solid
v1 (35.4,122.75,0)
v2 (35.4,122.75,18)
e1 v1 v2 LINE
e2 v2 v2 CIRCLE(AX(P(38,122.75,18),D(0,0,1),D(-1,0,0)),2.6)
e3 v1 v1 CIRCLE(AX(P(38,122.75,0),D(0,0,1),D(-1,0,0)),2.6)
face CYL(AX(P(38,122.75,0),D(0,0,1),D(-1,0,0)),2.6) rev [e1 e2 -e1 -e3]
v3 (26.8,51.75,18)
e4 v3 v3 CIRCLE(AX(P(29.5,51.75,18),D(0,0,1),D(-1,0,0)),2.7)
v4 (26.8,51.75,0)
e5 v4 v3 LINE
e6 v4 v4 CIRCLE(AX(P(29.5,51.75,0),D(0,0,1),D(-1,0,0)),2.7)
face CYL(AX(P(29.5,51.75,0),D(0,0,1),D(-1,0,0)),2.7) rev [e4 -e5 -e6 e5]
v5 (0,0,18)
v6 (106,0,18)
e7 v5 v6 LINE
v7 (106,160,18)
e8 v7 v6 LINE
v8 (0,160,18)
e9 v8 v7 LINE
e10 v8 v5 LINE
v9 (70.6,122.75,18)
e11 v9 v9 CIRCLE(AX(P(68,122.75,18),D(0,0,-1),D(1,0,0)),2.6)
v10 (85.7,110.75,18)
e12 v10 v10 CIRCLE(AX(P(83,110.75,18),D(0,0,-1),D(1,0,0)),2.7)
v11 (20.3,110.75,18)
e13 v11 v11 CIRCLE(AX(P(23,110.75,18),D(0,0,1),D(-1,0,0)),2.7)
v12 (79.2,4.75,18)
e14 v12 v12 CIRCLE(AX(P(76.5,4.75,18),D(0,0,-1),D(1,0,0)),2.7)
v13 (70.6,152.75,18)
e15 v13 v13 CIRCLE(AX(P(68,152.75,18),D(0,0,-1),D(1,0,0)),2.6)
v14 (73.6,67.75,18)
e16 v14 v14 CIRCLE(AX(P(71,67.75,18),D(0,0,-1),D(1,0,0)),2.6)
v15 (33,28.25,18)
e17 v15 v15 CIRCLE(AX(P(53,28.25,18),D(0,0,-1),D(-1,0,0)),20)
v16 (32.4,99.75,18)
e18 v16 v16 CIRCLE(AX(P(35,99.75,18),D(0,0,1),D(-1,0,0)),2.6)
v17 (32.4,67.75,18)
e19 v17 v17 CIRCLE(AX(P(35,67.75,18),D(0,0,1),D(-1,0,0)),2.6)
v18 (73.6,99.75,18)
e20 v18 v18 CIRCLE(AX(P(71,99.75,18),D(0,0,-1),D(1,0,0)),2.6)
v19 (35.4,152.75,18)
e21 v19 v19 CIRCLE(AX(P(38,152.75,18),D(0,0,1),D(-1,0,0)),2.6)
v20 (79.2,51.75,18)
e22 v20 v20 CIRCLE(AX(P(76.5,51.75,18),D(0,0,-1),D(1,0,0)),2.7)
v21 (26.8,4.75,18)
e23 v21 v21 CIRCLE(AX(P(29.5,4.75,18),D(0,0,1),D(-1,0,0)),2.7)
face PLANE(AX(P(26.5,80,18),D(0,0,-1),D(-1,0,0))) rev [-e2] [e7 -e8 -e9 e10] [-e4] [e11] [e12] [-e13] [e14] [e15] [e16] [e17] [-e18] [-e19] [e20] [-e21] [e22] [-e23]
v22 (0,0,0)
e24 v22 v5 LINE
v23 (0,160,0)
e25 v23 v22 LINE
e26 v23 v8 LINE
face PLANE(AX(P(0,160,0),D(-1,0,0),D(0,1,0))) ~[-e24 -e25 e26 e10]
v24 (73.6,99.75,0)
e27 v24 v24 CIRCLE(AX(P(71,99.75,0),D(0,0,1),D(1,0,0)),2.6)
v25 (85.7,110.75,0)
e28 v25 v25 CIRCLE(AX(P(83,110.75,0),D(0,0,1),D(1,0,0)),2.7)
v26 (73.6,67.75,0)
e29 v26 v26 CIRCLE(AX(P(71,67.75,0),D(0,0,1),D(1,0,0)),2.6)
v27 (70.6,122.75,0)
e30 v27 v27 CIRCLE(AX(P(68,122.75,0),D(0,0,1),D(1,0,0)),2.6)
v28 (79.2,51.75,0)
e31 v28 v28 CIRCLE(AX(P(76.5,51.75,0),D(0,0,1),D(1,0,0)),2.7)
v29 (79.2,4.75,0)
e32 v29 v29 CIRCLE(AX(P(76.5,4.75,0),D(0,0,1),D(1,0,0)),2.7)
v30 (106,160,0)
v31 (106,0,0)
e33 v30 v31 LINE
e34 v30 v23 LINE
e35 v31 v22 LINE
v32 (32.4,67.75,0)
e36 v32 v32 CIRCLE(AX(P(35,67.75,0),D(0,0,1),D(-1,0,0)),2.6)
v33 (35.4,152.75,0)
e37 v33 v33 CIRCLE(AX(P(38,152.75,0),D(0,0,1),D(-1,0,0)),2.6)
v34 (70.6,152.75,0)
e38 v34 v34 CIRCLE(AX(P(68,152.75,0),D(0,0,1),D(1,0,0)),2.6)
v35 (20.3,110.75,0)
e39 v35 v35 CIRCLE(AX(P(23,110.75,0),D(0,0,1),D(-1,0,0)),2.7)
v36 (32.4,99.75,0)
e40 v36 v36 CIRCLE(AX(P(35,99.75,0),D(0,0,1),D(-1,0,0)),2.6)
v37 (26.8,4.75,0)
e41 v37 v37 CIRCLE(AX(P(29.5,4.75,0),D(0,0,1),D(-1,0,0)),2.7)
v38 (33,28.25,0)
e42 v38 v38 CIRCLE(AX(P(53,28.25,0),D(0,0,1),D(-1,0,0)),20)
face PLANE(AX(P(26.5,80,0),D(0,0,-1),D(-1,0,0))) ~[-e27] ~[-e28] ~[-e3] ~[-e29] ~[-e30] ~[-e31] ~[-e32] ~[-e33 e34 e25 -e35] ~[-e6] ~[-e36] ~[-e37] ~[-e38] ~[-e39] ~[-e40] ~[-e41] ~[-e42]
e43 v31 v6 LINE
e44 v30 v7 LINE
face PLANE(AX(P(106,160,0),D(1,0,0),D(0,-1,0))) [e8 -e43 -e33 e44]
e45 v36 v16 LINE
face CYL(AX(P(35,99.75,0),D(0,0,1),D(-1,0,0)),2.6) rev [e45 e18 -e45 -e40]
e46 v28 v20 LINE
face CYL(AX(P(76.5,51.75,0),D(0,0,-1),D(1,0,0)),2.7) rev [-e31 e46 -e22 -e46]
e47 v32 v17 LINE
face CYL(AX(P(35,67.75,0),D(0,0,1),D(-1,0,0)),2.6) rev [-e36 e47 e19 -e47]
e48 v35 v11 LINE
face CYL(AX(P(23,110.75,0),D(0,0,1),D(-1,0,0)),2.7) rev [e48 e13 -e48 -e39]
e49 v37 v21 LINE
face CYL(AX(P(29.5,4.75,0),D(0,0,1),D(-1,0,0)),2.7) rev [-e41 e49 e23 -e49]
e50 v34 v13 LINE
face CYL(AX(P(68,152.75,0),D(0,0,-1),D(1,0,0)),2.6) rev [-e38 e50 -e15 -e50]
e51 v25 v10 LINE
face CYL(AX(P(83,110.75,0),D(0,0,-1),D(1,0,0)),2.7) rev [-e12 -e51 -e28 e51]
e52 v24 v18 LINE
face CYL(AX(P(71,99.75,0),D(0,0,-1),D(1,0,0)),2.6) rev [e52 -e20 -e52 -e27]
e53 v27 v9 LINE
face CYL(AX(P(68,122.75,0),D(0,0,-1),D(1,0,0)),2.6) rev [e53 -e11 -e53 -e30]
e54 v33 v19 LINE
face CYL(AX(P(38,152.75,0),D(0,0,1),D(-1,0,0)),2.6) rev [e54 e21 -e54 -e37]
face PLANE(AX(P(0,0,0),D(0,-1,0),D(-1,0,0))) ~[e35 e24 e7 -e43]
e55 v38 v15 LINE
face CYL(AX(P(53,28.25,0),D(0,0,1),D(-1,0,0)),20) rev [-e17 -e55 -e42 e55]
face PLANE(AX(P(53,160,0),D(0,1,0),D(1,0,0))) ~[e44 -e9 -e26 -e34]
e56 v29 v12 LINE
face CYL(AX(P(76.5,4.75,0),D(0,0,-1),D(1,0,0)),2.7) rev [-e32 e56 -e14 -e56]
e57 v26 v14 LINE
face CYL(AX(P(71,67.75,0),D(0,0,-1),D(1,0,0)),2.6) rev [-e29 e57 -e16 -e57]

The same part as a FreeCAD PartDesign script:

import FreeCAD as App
import Part
import Sketcher

V = App.Vector
Q = App.Units.Quantity


def add_polygon(sketch, points):
    """Adds a closed chain of lines whose ends are joined by coincident constraints."""
    first, n = sketch.GeometryCount, len(points)
    for a, b in zip(points, points[1:] + points[:1]):
        sketch.addGeometry(Part.LineSegment(App.Vector(*a, 0), App.Vector(*b, 0)), False)
    for i in range(n):
        sketch.addConstraint(Sketcher.Constraint("Coincident", first + i, 2, first + (i + 1) % n, 1))

doc = App.newDocument("Part")
body = doc.addObject("PartDesign::Body", "Body")

# Sketch on XY plane
sketch1 = body.newObject("Sketcher::SketchObject", "Sketch")
sketch1.AttachmentSupport = (doc.getObject("XY_Plane"), [""])
sketch1.MapMode = "FlatFace"
add_polygon(sketch1, [(53, 92.25), (0, 92.25), (0, -67.75), (53, -67.75)])  # lines 0-3
sketch1.addConstraint([
    Sketcher.Constraint("Horizontal", 0),
    Sketcher.Constraint("Vertical", 1),
    Sketcher.Constraint("Horizontal", 2),
    Sketcher.Constraint("Vertical", 3),
    Sketcher.Constraint("PointOnObject", 0, 2, -2),
    Sketcher.Constraint("DistanceX", 0, 2, 0, 1, Q("53 mm")),
    Sketcher.Constraint("DistanceY", 1, 2, 1, 1, Q("160 mm")),
    Sketcher.Constraint("DistanceY", -1, 1, 0, 2, Q("92.25 mm")),
])
pad1 = body.newObject("PartDesign::Pad", "Pad")
pad1.Profile = sketch1
pad1.Length = 18

# Sketch on XY plane
sketch2 = body.newObject("Sketcher::SketchObject", "Sketch001")
sketch2.AttachmentSupport = (doc.getObject("XY_Plane"), [""])
sketch2.MapMode = "FlatFace"
sketch2.addGeometry([
    Part.Circle(V(18, 0, 0), V(0, 0, 1), 2.6),
    Part.Circle(V(18, 32, 0), V(0, 0, 1), 2.6),
], False)
sketch2.addConstraint([
    Sketcher.Constraint("Equal", 0, 1),
    Sketcher.Constraint("PointOnObject", 0, 3, -1),
    Sketcher.Constraint("Vertical", 0, 3, 1, 3),
    Sketcher.Constraint("Diameter", 0, Q("5.2 mm")),
    Sketcher.Constraint("DistanceX", -1, 1, 0, 3, Q("18 mm")),
    Sketcher.Constraint("DistanceY", -1, 1, 1, 3, Q("32 mm")),
])
pocket1 = body.newObject("PartDesign::Pocket", "Pocket")
pocket1.Profile = sketch2
pocket1.Type = "ThroughAll"
pocket1.Midplane = True

# Sketch on XY plane
sketch3 = body.newObject("Sketcher::SketchObject", "Sketch002")
sketch3.AttachmentSupport = (doc.getObject("XY_Plane"), [""])
sketch3.MapMode = "FlatFace"
sketch3.addGeometry([
    Part.Circle(V(15, 55, 0), V(0, 0, 1), 2.6),
    Part.Circle(V(15, 85, 0), V(0, 0, 1), 2.6),
], False)
sketch3.addConstraint([
    Sketcher.Constraint("Equal", 0, 1),
    Sketcher.Constraint("Vertical", 0, 3, 1, 3),
    Sketcher.Constraint("Diameter", 0, Q("5.2 mm")),
    Sketcher.Constraint("DistanceX", -1, 1, 0, 3, Q("15 mm")),
    Sketcher.Constraint("DistanceY", -1, 1, 0, 3, Q("55 mm")),
    Sketcher.Constraint("DistanceY", -1, 1, 1, 3, Q("85 mm")),
])
pocket2 = body.newObject("PartDesign::Pocket", "Pocket001")
pocket2.Profile = sketch3
pocket2.Type = "ThroughAll"
pocket2.Midplane = True

# Sketch on XY plane
sketch4 = body.newObject("Sketcher::SketchObject", "Sketch003")
sketch4.AttachmentSupport = (doc.getObject("XY_Plane"), [""])
sketch4.MapMode = "FlatFace"
sketch4.addGeometry(Part.Circle(V(0, -39.5, 0), V(0, 0, 1), 20), False)
sketch4.addConstraint([
    Sketcher.Constraint("PointOnObject", 0, 3, -2),
    Sketcher.Constraint("Diameter", 0, Q("40 mm")),
    Sketcher.Constraint("DistanceY", 0, 3, -1, 1, Q("39.5 mm")),
])
pocket3 = body.newObject("PartDesign::Pocket", "Pocket002")
pocket3.Profile = sketch4
pocket3.Type = "ThroughAll"
pocket3.Midplane = True

# Sketch on XY plane
sketch5 = body.newObject("Sketcher::SketchObject", "Sketch004")
sketch5.AttachmentSupport = (doc.getObject("XY_Plane"), [""])
sketch5.MapMode = "FlatFace"
sketch5.addGeometry([
    Part.Circle(V(23.5, -16, 0), V(0, 0, 1), 2.7),
    Part.Circle(V(23.5, -63, 0), V(0, 0, 1), 2.7),
], False)
sketch5.addConstraint([
    Sketcher.Constraint("Equal", 0, 1),
    Sketcher.Constraint("Vertical", 0, 3, 1, 3),
    Sketcher.Constraint("Diameter", 0, Q("5.4 mm")),
    Sketcher.Constraint("DistanceY", 0, 3, -1, 1, Q("16 mm")),
    Sketcher.Constraint("DistanceY", 1, 3, -1, 1, Q("63 mm")),
    Sketcher.Constraint("DistanceX", -1, 1, 0, 3, Q("23.5 mm")),
])
pocket4 = body.newObject("PartDesign::Pocket", "Pocket003")
pocket4.Profile = sketch5
pocket4.Type = "ThroughAll"
pocket4.Midplane = True

# Sketch on XY plane
sketch6 = body.newObject("Sketcher::SketchObject", "Sketch005")
sketch6.AttachmentSupport = (doc.getObject("XY_Plane"), [""])
sketch6.MapMode = "FlatFace"
sketch6.addGeometry(Part.Circle(V(30, 43, 0), V(0, 0, 1), 2.7), False)
sketch6.addConstraint([
    Sketcher.Constraint("Diameter", 0, Q("5.4 mm")),
    Sketcher.Constraint("DistanceX", -1, 1, 0, 3, Q("30 mm")),
    Sketcher.Constraint("DistanceY", -1, 1, 0, 3, Q("43 mm")),
])
pocket5 = body.newObject("PartDesign::Pocket", "Pocket004")
pocket5.Profile = sketch6
pocket5.Type = "ThroughAll"
pocket5.Midplane = True
doc.recompute()

mirrored = body.newObject("PartDesign::Mirrored", "Mirrored")
mirrored.Originals = [pad1, pocket1, pocket2, pocket3, pocket4, pocket5]
mirrored.MirrorPlane = (doc.getObject("YZ_Plane"), [""])
body.Tip = mirrored
body2 = doc.addObject("PartDesign::Body", "Body001")
doc.recompute()

body.Placement = App.Placement(V(53, 67.75, 0), App.Rotation(V(0, 0, 1), 0))
boolean = body2.newObject("PartDesign::Boolean", "Boolean")
boolean.Type = "Fuse"
boolean.addObjects([body])

doc.recompute()
